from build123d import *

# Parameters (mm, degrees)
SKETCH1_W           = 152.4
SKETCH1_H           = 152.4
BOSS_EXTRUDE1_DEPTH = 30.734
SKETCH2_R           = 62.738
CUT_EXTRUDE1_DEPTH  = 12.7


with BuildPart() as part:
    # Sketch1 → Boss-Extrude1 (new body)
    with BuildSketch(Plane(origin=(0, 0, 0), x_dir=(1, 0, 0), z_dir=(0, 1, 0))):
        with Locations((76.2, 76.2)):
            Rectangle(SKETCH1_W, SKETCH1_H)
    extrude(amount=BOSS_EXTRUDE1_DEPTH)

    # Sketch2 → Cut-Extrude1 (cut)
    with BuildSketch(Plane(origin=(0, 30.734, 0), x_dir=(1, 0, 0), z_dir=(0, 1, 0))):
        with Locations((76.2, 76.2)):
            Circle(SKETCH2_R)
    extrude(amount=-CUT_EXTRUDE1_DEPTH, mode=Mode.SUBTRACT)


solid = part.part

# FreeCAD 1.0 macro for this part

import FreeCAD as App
import Part
import Sketcher

V = App.Vector
Q = App.Units.Quantity


def add_polygon(sketch, points):
    """Adds a closed chain of lines whose ends are joined by coincident constraints."""
    first, n = sketch.GeometryCount, len(points)
    for a, b in zip(points, points[1:] + points[:1]):
        sketch.addGeometry(Part.LineSegment(App.Vector(*a, 0), App.Vector(*b, 0)), False)
    for i in range(n):
        sketch.addConstraint(Sketcher.Constraint("Coincident", first + i, 2, first + (i + 1) % n, 1))

doc = App.newDocument("Part")
body = doc.addObject("PartDesign::Body", "Body")

sketch1 = body.newObject("Sketcher::SketchObject", "Sketch")
sketch1.AttachmentSupport = (doc.getObject("XZ_Plane"), [""])
sketch1.MapMode = "FlatFace"
add_polygon(sketch1, [(0, -152), (0, 0), (152, 0), (152, -152)])
sketch1.addConstraint([
    Sketcher.Constraint("Vertical", 0),
    Sketcher.Constraint("Horizontal", 1),
    Sketcher.Constraint("Vertical", 2),
    Sketcher.Constraint("Horizontal", 3),
    Sketcher.Constraint("Coincident", 0, 2, -1, 1),
    Sketcher.Constraint("Equal", 3, 0),
    Sketcher.Constraint("DistanceX", 1, 1, 1, 2, Q("6 in")),
])
pad1 = body.newObject("PartDesign::Pad", "Pad")
pad1.Profile = sketch1
pad1.Length = Q("1.21 in")
pad1.Reversed = True

sketch2 = body.newObject("Sketcher::SketchObject", "Sketch001")
sketch2.AttachmentSupport = (doc.getObject("XZ_Plane"), [""])
sketch2.MapMode = "FlatFace"
sketch2.AttachmentOffset = App.Placement(V(0, 0, -1.21 * 25.4), App.Rotation())
sketch2.addGeometry(Part.Circle(V(76, -76, 0), V(0, 0, 1), 63), False)
sketch2.addConstraint([
    Sketcher.Constraint("Diameter", 0, Q("4.94 in")),
    Sketcher.Constraint("DistanceX", -1, 1, 0, 3, Q("3 in")),
    Sketcher.Constraint("DistanceY", 0, 3, -1, 1, Q("3 in")),
])
pocket1 = body.newObject("PartDesign::Pocket", "Pocket")
pocket1.Profile = sketch2
pocket1.Length = Q("0.5 in")
pocket1.Reversed = True

doc.recompute()
